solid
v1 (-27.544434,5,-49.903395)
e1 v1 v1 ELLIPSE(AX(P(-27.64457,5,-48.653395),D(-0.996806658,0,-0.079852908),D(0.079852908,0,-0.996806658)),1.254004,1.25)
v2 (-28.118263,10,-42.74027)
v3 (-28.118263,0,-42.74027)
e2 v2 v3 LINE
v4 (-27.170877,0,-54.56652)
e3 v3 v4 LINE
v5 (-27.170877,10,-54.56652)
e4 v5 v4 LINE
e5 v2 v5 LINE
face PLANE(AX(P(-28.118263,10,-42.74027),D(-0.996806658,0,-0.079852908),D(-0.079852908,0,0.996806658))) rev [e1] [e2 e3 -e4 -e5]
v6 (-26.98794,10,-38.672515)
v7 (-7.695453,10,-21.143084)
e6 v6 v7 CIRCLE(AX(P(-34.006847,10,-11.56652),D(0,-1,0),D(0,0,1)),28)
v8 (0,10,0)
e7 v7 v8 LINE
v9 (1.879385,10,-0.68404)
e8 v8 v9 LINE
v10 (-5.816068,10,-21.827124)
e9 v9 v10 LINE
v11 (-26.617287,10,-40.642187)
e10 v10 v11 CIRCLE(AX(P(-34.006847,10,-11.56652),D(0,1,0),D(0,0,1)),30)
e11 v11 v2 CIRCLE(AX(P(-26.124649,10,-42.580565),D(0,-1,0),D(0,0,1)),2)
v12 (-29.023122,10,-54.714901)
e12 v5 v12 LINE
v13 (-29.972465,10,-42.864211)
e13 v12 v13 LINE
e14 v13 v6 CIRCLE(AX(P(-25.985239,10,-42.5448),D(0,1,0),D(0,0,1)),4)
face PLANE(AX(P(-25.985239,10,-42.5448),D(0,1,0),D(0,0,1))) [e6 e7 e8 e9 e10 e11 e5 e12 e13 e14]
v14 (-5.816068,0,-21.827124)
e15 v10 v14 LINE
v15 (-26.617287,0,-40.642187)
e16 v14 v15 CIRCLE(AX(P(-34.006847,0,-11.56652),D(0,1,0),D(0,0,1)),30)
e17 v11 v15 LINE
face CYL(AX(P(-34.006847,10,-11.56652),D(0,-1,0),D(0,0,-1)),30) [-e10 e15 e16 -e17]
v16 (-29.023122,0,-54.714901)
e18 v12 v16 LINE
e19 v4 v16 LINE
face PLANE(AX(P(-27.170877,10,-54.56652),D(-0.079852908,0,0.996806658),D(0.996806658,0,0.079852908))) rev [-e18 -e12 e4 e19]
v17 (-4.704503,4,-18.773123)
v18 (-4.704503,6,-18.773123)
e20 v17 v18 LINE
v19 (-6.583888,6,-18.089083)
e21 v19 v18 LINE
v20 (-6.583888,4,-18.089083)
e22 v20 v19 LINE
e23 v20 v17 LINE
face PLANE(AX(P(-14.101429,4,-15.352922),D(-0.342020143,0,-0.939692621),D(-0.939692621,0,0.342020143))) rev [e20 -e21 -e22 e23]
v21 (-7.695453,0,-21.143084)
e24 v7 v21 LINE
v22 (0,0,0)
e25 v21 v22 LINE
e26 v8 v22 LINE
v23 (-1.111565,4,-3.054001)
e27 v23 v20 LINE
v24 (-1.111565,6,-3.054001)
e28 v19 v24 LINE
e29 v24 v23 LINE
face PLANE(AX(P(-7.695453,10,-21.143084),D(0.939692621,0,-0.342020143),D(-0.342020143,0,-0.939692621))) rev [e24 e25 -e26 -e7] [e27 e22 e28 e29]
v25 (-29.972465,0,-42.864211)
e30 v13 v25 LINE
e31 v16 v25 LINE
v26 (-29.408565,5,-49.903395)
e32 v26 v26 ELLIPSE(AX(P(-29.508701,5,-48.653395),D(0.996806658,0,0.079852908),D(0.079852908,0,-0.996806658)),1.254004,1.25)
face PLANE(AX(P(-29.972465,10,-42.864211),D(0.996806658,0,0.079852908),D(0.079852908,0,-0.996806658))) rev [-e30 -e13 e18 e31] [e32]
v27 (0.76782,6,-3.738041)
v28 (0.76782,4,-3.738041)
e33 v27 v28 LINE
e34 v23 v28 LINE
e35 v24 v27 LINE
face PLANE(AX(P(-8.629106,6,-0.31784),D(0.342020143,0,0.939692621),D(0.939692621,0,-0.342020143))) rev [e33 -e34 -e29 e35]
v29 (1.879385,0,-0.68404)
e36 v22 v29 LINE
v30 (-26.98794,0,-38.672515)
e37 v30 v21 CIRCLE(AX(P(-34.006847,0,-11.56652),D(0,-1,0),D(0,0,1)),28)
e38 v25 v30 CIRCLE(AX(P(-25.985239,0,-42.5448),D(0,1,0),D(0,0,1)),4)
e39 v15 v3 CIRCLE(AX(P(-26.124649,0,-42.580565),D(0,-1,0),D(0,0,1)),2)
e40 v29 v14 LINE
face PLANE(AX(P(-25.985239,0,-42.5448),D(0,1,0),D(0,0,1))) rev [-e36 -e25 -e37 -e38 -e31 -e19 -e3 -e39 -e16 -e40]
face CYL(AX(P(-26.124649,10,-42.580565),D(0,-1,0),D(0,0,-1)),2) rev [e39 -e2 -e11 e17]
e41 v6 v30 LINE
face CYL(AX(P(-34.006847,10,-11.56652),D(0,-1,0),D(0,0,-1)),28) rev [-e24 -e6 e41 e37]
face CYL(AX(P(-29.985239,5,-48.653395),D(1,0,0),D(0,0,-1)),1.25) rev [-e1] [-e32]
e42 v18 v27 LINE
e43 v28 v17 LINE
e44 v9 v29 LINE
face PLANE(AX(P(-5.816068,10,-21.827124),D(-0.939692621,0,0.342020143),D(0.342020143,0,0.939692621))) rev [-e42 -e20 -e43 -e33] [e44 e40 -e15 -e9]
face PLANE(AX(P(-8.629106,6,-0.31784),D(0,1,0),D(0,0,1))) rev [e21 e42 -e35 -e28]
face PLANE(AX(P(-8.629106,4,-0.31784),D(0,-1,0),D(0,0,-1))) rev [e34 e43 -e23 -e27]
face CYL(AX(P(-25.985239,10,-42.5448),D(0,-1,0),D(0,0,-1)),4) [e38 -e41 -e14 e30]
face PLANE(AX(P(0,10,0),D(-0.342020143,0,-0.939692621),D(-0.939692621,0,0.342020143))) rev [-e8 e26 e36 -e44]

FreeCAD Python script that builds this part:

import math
import FreeCAD as App
import Part
import Sketcher

V = App.Vector
Q = App.Units.Quantity

doc = App.newDocument("Part")
params = doc.addObject("Spreadsheet::Sheet", "Params")
for row, (alias, value) in enumerate([
    ("sketch1_radius", "4 mm"),
    ("sketch1_radius2", "28 mm"),
    ("sketch1_radius3", "30 mm"),
    ("sketch1_radius4", "2 mm"),
    ("sketch1_length", "22.5 mm"),
    ("pad1_length", "10 mm"),
    ("sketch2_diameter", "2.5 mm"),
    ("sketch3_width", "16 mm"),
    ("sketch3_height", "2 mm"),
    ("pocket2_length", "10 mm"),
], start=1):
    params.set(f"A{row}", alias)
    params.set(f"B{row}", "=" + value)
    params.setAlias(f"B{row}", alias)

body = doc.addObject("PartDesign::Body", "Body")

# Sketch on XZ plane
sketch1 = doc.addObject("Sketcher::SketchObject", "Sketch")
body.addObject(sketch1)
sketch1.AttachmentSupport = (doc.XZ_Plane, [""])
sketch1.MapMode = "FlatFace"
sketch1.addGeometry(Part.LineSegment(V(-28.1, -42.7, 0), V(-27.2, -54.6, 0)), False)
sketch1.addGeometry(Part.LineSegment(V(-27.2, -54.6, 0), V(-29, -54.7, 0)), False)
sketch1.addGeometry(Part.LineSegment(V(-29, -54.7, 0), V(-30, -42.9, 0)), False)
sketch1.addGeometry(Part.ArcOfCircle(Part.Circle(V(-26, -42.5, 0), V(0, 0, 1), 4), math.radians(105), math.radians(185)), False)
sketch1.addGeometry(Part.ArcOfCircle(Part.Circle(V(-34, -11.6, 0), V(0, 0, 1), 28), math.radians(-75), math.radians(-20)), False)
sketch1.addGeometry(Part.LineSegment(V(-7.7, -21.1, 0), V(0, 0, 0)), False)
sketch1.addGeometry(Part.LineSegment(V(0, 0, 0), V(1.9, -0.7, 0)), False)
sketch1.addGeometry(Part.LineSegment(V(1.9, -0.7, 0), V(-5.8, -21.8, 0)), False)
sketch1.addGeometry(Part.ArcOfCircle(Part.Circle(V(-34, -11.6, 0), V(0, 0, 1), 30), math.radians(-76), math.radians(-20)), False)
sketch1.addGeometry(Part.ArcOfCircle(Part.Circle(V(-26.1, -42.6, 0), V(0, 0, 1), 2), math.radians(104), math.radians(185)), False)
sketch1.addConstraint(Sketcher.Constraint("Coincident", 0, 2, 1, 1))
sketch1.addConstraint(Sketcher.Constraint("Coincident", 1, 2, 2, 1))
sketch1.addConstraint(Sketcher.Constraint("Tangent", 2, 2, 3, 2))
sketch1.addConstraint(Sketcher.Constraint("Tangent", 3, 1, 4, 1))
sketch1.addConstraint(Sketcher.Constraint("Tangent", 4, 2, 5, 1))
sketch1.addConstraint(Sketcher.Constraint("Coincident", 5, 2, 6, 1))
sketch1.addConstraint(Sketcher.Constraint("Coincident", 6, 2, 7, 1))
sketch1.addConstraint(Sketcher.Constraint("Tangent", 7, 2, 8, 2))
sketch1.addConstraint(Sketcher.Constraint("Tangent", 8, 1, 9, 1))
sketch1.addConstraint(Sketcher.Constraint("Tangent", 9, 2, 0, 1))
sketch1.addConstraint(Sketcher.Constraint("Coincident", 5, 2, -1, 1))
sketch1.addConstraint(Sketcher.Constraint("Coincident", 8, 3, 4, 3))
sketch1.addConstraint(Sketcher.Constraint("Perpendicular", 0, 1))
sketch1.addConstraint(Sketcher.Constraint("Perpendicular", 1, 2))
sketch1.addConstraint(Sketcher.Constraint("Perpendicular", 5, 6))
sketch1.addConstraint(Sketcher.Constraint("Perpendicular", 6, 7))
sketch1.addConstraint(Sketcher.Constraint("Radius", 3, Q("4 mm")))
sketch1.addConstraint(Sketcher.Constraint("Radius", 4, Q("28 mm")))
sketch1.addConstraint(Sketcher.Constraint("Radius", 8, Q("30 mm")))
sketch1.addConstraint(Sketcher.Constraint("Radius", 9, Q("2 mm")))
sketch1.addConstraint(Sketcher.Constraint("Angle", 5, Q("70 deg")))
sketch1.addConstraint(Sketcher.Constraint("DistanceY", 0, 2, 4, 3, Q("43 mm")))
sketch1.addConstraint(Sketcher.Constraint("Distance", 5, Q("22.5 mm")))
sketch1.addConstraint(Sketcher.Constraint("DistanceY", 3, 3, -1, 1, Q("42.5448 mm")))
sketch1.addConstraint(Sketcher.Constraint("DistanceY", 1, 2, -1, 1, Q("54.714901 mm")))
sketch1.addConstraint(Sketcher.Constraint("Distance", 1, Q("1.858178 mm")))
sketch1.setExpression("Constraints[16]", "Params.sketch1_radius")
sketch1.setExpression("Constraints[17]", "Params.sketch1_radius2")
sketch1.setExpression("Constraints[18]", "Params.sketch1_radius3")
sketch1.setExpression("Constraints[19]", "Params.sketch1_radius4")
sketch1.setExpression("Constraints[22]", "Params.sketch1_length")
pad1 = doc.addObject("PartDesign::Pad", "Pad")
body.addObject(pad1)
pad1.Profile = sketch1
pad1.setExpression("Length", "Params.pad1_length")
pad1.Reversed = True

# Sketch on YZ plane
sketch2 = doc.addObject("Sketcher::SketchObject", "Sketch001")
body.addObject(sketch2)
sketch2.AttachmentSupport = (doc.YZ_Plane, [""])
sketch2.MapMode = "FlatFace"
sketch2.addGeometry(Part.Circle(V(5, -48.7, 0), V(0, 0, 1), 1.2), False)
sketch2.addConstraint(Sketcher.Constraint("Diameter", 0, Q("2.5 mm")))
sketch2.addConstraint(Sketcher.Constraint("DistanceX", -1, 1, 0, 3, Q("5 mm")))
sketch2.addConstraint(Sketcher.Constraint("DistanceY", 0, 3, -1, 1, Q("48.653395 mm")))
sketch2.setExpression("Constraints[0]", "Params.sketch2_diameter")
pocket1 = doc.addObject("PartDesign::Pocket", "Pocket")
body.addObject(pocket1)
pocket1.Profile = sketch2
pocket1.Type = "ThroughAll"

# Sketch on an angled plane
sketch3 = doc.addObject("Sketcher::SketchObject", "Sketch002")
body.addObject(sketch3)
sketch3.Placement = App.Placement(V(1.879385, 0, -0.68404), App.Rotation(V(-0.342020143, 0, -0.939692621), V(0, 1, 0), V(0.939692621, 0, -0.342020143), "ZXY"))
sketch3.addGeometry(Part.LineSegment(V(3.3, 6, 0), V(3.3, 4, 0)), False)
sketch3.addGeometry(Part.LineSegment(V(3.3, 4, 0), V(19.3, 4, 0)), False)
sketch3.addGeometry(Part.LineSegment(V(19.3, 4, 0), V(19.3, 6, 0)), False)
sketch3.addGeometry(Part.LineSegment(V(19.3, 6, 0), V(3.3, 6, 0)), False)
sketch3.addConstraint(Sketcher.Constraint("Coincident", 0, 2, 1, 1))
sketch3.addConstraint(Sketcher.Constraint("Coincident", 1, 2, 2, 1))
sketch3.addConstraint(Sketcher.Constraint("Coincident", 2, 2, 3, 1))
sketch3.addConstraint(Sketcher.Constraint("Coincident", 3, 2, 0, 1))
sketch3.addConstraint(Sketcher.Constraint("Vertical", 0))
sketch3.addConstraint(Sketcher.Constraint("Horizontal", 1))
sketch3.addConstraint(Sketcher.Constraint("Vertical", 2))
sketch3.addConstraint(Sketcher.Constraint("Horizontal", 3))
sketch3.addConstraint(Sketcher.Constraint("DistanceX", 1, 1, 1, 2, Q("16 mm")))
sketch3.addConstraint(Sketcher.Constraint("DistanceY", 0, 2, 0, 1, Q("2 mm")))
sketch3.addConstraint(Sketcher.Constraint("DistanceY", -1, 1, 0, 2, Q("4 mm")))
sketch3.addConstraint(Sketcher.Constraint("DistanceX", -1, 1, 0, 2, Q("3.25 mm")))
sketch3.setExpression("Constraints[8]", "Params.sketch3_width")
sketch3.setExpression("Constraints[9]", "Params.sketch3_height")
pocket2 = doc.addObject("PartDesign::Pocket", "Pocket001")
body.addObject(pocket2)
pocket2.Profile = sketch3
pocket2.setExpression("Length", "Params.pocket2_length")

doc.recompute()
